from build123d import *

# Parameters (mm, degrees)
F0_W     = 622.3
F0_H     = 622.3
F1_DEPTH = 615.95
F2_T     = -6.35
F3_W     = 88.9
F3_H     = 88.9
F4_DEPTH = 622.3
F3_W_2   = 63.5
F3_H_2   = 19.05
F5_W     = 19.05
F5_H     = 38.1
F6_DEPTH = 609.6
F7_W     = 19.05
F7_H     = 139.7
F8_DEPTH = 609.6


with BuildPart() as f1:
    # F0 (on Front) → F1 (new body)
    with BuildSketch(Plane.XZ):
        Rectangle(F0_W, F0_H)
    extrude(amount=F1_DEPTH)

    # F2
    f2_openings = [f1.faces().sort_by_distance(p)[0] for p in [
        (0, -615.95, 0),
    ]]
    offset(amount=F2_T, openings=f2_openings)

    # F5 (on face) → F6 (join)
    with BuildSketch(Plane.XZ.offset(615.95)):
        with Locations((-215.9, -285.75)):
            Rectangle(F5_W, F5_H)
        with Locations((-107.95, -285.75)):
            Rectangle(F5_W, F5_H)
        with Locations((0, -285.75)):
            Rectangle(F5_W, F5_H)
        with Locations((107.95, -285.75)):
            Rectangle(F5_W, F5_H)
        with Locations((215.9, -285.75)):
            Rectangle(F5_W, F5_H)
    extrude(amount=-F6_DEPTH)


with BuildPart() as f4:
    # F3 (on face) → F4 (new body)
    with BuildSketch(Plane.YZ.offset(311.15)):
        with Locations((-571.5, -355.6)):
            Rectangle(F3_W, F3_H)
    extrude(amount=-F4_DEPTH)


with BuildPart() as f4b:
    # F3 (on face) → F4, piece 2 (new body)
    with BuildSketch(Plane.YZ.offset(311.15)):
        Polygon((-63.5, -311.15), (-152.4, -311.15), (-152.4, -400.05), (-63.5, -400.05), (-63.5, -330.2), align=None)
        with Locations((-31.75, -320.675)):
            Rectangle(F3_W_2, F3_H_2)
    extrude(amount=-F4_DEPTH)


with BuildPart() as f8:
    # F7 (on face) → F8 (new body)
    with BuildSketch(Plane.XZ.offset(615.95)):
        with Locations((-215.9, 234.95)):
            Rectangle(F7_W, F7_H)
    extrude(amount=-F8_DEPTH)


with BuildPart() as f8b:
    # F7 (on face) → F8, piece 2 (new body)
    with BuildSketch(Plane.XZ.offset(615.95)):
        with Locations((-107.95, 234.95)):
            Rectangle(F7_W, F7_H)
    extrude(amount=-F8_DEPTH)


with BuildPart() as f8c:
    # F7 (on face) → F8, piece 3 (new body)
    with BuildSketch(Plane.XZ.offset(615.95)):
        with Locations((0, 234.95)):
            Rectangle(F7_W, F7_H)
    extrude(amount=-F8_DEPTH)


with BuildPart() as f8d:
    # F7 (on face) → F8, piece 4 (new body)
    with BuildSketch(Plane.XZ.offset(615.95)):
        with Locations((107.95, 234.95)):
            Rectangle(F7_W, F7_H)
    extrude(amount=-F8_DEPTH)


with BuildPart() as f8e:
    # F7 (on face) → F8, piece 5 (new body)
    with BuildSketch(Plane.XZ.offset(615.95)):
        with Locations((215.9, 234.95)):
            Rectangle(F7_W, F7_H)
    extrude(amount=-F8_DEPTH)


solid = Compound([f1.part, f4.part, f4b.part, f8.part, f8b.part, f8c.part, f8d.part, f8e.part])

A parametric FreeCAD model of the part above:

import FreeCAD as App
import Part
import Sketcher
from FreeCAD import Vector
Q = App.Units.Quantity


def faces_at(feature, points):
    """Names of the faces that lie closest to the given points."""
    faces = feature.Shape.Faces
    near = lambda p: min(range(len(faces)), key=lambda i: faces[i].distToShape(Part.Vertex(*p))[0])
    return sorted({f"Face{near(p) + 1}" for p in points})

doc = App.newDocument("Part")
body = doc.addObject("PartDesign::Body", "Body")

# Sketch on XZ plane
sketch1 = body.newObject("Sketcher::SketchObject", "Sketch")
sketch1.AttachmentSupport = (doc.getObject("XZ_Plane"), [""])
sketch1.MapMode = "FlatFace"
sketch1.addGeometry([
    Part.LineSegment(Vector(-311, 311, 0), Vector(-311, -311, 0)),
    Part.LineSegment(Vector(-311, -311, 0), Vector(311, -311, 0)),
    Part.LineSegment(Vector(311, -311, 0), Vector(311, 311, 0)),
    Part.LineSegment(Vector(311, 311, 0), Vector(-311, 311, 0)),
], False)
sketch1.addConstraint([
    Sketcher.Constraint("Coincident", 0, 2, 1, 1),
    Sketcher.Constraint("Coincident", 1, 2, 2, 1),
    Sketcher.Constraint("Coincident", 2, 2, 3, 1),
    Sketcher.Constraint("Coincident", 3, 2, 0, 1),
    Sketcher.Constraint("Vertical", 0),
    Sketcher.Constraint("Horizontal", 1),
    Sketcher.Constraint("Vertical", 2),
    Sketcher.Constraint("Horizontal", 3),
    Sketcher.Constraint("Symmetric", 0, 2, 2, 2, -1, 1),
    Sketcher.Constraint("Equal", 3, 0),
    Sketcher.Constraint("DistanceX", 1, 1, 1, 2, Q("24.5 in")),
])
pad1 = body.newObject("PartDesign::Pad", "Pad")
pad1.Profile = sketch1
pad1.Length = Q("24.25 in")
doc.recompute()

thickness = body.newObject("PartDesign::Thickness", "Thickness")
thickness.Base = (pad1, faces_at(pad1, [(0, -615.95, 0)]))
thickness.Value = Q("0.25 in")
thickness.Reversed = True
thickness.Join = "Arc"

# Sketch on XZ plane
sketch2 = body.newObject("Sketcher::SketchObject", "Sketch001")
sketch2.AttachmentSupport = (doc.getObject("XZ_Plane"), [""])
sketch2.MapMode = "FlatFace"
sketch2.AttachmentOffset = App.Placement(Vector(0, 0, 24.25 * 25.4), App.Rotation())
sketch2.addGeometry([
    Part.LineSegment(Vector(-225, -267, 0), Vector(-225, -305, 0)),  # 0
    Part.LineSegment(Vector(-225, -305, 0), Vector(-206, -305, 0)),  # 1
    Part.LineSegment(Vector(-206, -305, 0), Vector(-206, -267, 0)),  # 2
    Part.LineSegment(Vector(-206, -267, 0), Vector(-225, -267, 0)),  # 3
    Part.LineSegment(Vector(-117, -267, 0), Vector(-117, -305, 0)),  # 4
    Part.LineSegment(Vector(-117, -305, 0), Vector(-98, -305, 0)),  # 5
    Part.LineSegment(Vector(-98, -305, 0), Vector(-98, -267, 0)),  # 6
    Part.LineSegment(Vector(-98, -267, 0), Vector(-117, -267, 0)),  # 7
    Part.LineSegment(Vector(-10, -267, 0), Vector(-10, -305, 0)),  # 8
    Part.LineSegment(Vector(-10, -305, 0), Vector(10, -305, 0)),  # 9
    Part.LineSegment(Vector(10, -305, 0), Vector(10, -267, 0)),  # 10
    Part.LineSegment(Vector(10, -267, 0), Vector(-10, -267, 0)),  # 11
    Part.LineSegment(Vector(98, -267, 0), Vector(98, -305, 0)),  # 12
    Part.LineSegment(Vector(98, -305, 0), Vector(117, -305, 0)),  # 13
    Part.LineSegment(Vector(117, -305, 0), Vector(117, -267, 0)),  # 14
    Part.LineSegment(Vector(117, -267, 0), Vector(98, -267, 0)),  # 15
    Part.LineSegment(Vector(206, -267, 0), Vector(206, -305, 0)),  # 16
    Part.LineSegment(Vector(206, -305, 0), Vector(225, -305, 0)),  # 17
    Part.LineSegment(Vector(225, -305, 0), Vector(225, -267, 0)),  # 18
    Part.LineSegment(Vector(225, -267, 0), Vector(206, -267, 0)),  # 19
], False)
sketch2.addConstraint([
    Sketcher.Constraint("Coincident", 0, 2, 1, 1),
    Sketcher.Constraint("Coincident", 1, 2, 2, 1),
    Sketcher.Constraint("Coincident", 2, 2, 3, 1),
    Sketcher.Constraint("Coincident", 3, 2, 0, 1),
    Sketcher.Constraint("Coincident", 4, 2, 5, 1),
    Sketcher.Constraint("Coincident", 5, 2, 6, 1),
    Sketcher.Constraint("Coincident", 6, 2, 7, 1),
    Sketcher.Constraint("Coincident", 7, 2, 4, 1),
    Sketcher.Constraint("Coincident", 8, 2, 9, 1),
    Sketcher.Constraint("Coincident", 9, 2, 10, 1),
    Sketcher.Constraint("Coincident", 10, 2, 11, 1),
    Sketcher.Constraint("Coincident", 11, 2, 8, 1),
    Sketcher.Constraint("Coincident", 12, 2, 13, 1),
    Sketcher.Constraint("Coincident", 13, 2, 14, 1),
    Sketcher.Constraint("Coincident", 14, 2, 15, 1),
    Sketcher.Constraint("Coincident", 15, 2, 12, 1),
    Sketcher.Constraint("Coincident", 16, 2, 17, 1),
    Sketcher.Constraint("Coincident", 17, 2, 18, 1),
    Sketcher.Constraint("Coincident", 18, 2, 19, 1),
    Sketcher.Constraint("Coincident", 19, 2, 16, 1),
    Sketcher.Constraint("Vertical", 0),
    Sketcher.Constraint("Horizontal", 1),
    Sketcher.Constraint("Vertical", 2),
    Sketcher.Constraint("Horizontal", 3),
    Sketcher.Constraint("Vertical", 4),
    Sketcher.Constraint("Horizontal", 5),
    Sketcher.Constraint("Vertical", 6),
    Sketcher.Constraint("Horizontal", 7),
    Sketcher.Constraint("Vertical", 8),
    Sketcher.Constraint("Horizontal", 9),
    Sketcher.Constraint("Vertical", 10),
    Sketcher.Constraint("Horizontal", 11),
    Sketcher.Constraint("Vertical", 12),
    Sketcher.Constraint("Horizontal", 13),
    Sketcher.Constraint("Vertical", 14),
    Sketcher.Constraint("Horizontal", 15),
    Sketcher.Constraint("Vertical", 16),
    Sketcher.Constraint("Horizontal", 17),
    Sketcher.Constraint("Vertical", 18),
    Sketcher.Constraint("Horizontal", 19),
    Sketcher.Constraint("Symmetric", 5, 2, 12, 2, -2),
    Sketcher.Constraint("Symmetric", 7, 2, 14, 2, -2),
    Sketcher.Constraint("Symmetric", 1, 2, 16, 2, -2),
    Sketcher.Constraint("Symmetric", 3, 2, 18, 2, -2),
    Sketcher.Constraint("Horizontal", 1, 2, 4, 2),
    Sketcher.Constraint("Horizontal", 3, 2, 6, 2),
    Sketcher.Constraint("Horizontal", 5, 2, 8, 2),
    Sketcher.Constraint("Horizontal", 7, 2, 10, 2),
    Sketcher.Constraint("Equal", 3, 5),
    Sketcher.Constraint("Equal", 7, 9),
    Sketcher.Constraint("DistanceY", 0, 2, 0, 1, Q("1.5 in")),
    Sketcher.Constraint("DistanceY", 0, 2, -1, 1, Q("12 in")),
    Sketcher.Constraint("DistanceX", 0, 2, 5, 2, Q("5 in")),
    Sketcher.Constraint("DistanceX", 4, 2, 9, 2, Q("5 in")),
    Sketcher.Constraint("DistanceX", 8, 2, 13, 2, Q("5 in")),
    Sketcher.Constraint("DistanceX", 1, 1, 1, 2, Q("0.75 in")),
])
pad2 = body.newObject("PartDesign::Pad", "Pad001")
pad2.Profile = sketch2
pad2.Length = Q("24 in")
pad2.Reversed = True
body2 = doc.addObject("PartDesign::Body", "Body001")

# Sketch on YZ plane
sketch3 = body2.newObject("Sketcher::SketchObject", "Sketch002")
sketch3.AttachmentSupport = (doc.getObject("YZ_Plane001"), [""])
sketch3.MapMode = "FlatFace"
sketch3.AttachmentOffset = App.Placement(Vector(0, 0, 12.25 * 25.4), App.Rotation())
sketch3.addGeometry([
    Part.LineSegment(Vector(-616, -311, 0), Vector(-616, -400, 0)),
    Part.LineSegment(Vector(-616, -400, 0), Vector(-527, -400, 0)),
    Part.LineSegment(Vector(-527, -400, 0), Vector(-527, -311, 0)),
    Part.LineSegment(Vector(-527, -311, 0), Vector(-616, -311, 0)),
], False)
sketch3.addConstraint([
    Sketcher.Constraint("Coincident", 0, 2, 1, 1),
    Sketcher.Constraint("Coincident", 1, 2, 2, 1),
    Sketcher.Constraint("Coincident", 2, 2, 3, 1),
    Sketcher.Constraint("Coincident", 3, 2, 0, 1),
    Sketcher.Constraint("Vertical", 0),
    Sketcher.Constraint("Horizontal", 1),
    Sketcher.Constraint("Vertical", 2),
    Sketcher.Constraint("Horizontal", 3),
    Sketcher.Constraint("Equal", 3, 0),
    Sketcher.Constraint("DistanceX", 1, 1, 1, 2, Q("3.5 in")),
    Sketcher.Constraint("DistanceX", 0, 2, -1, 1, Q("24.25 in")),
    Sketcher.Constraint("DistanceY", 0, 2, -1, 1, Q("15.75 in")),
])
pad3 = body2.newObject("PartDesign::Pad", "Pad002")
pad3.Profile = sketch3
pad3.Length = Q("24.5 in")
pad3.Reversed = True
body3 = doc.addObject("PartDesign::Body", "Body002")

# Sketch on YZ plane
sketch4 = body3.newObject("Sketcher::SketchObject", "Sketch003")
sketch4.AttachmentSupport = (doc.getObject("YZ_Plane002"), [""])
sketch4.MapMode = "FlatFace"
sketch4.AttachmentOffset = App.Placement(Vector(0, 0, 12.25 * 25.4), App.Rotation())
sketch4.addGeometry([
    Part.LineSegment(Vector(-152, -311, 0), Vector(-152, -400, 0)),  # 0
    Part.LineSegment(Vector(-152, -400, 0), Vector(-64, -400, 0)),  # 1
    Part.LineSegment(Vector(-64, -400, 0), Vector(-64, -330, 0)),  # 2
    Part.LineSegment(Vector(-64, -330, 0), Vector(0, -330, 0)),  # 3
    Part.LineSegment(Vector(0, -330, 0), Vector(0, -311, 0)),  # 4
    Part.LineSegment(Vector(0, -311, 0), Vector(-152, -311, 0)),  # 5
], False)
sketch4.addConstraint([
    Sketcher.Constraint("Coincident", 0, 2, 1, 1),
    Sketcher.Constraint("Coincident", 1, 2, 2, 1),
    Sketcher.Constraint("Coincident", 2, 2, 3, 1),
    Sketcher.Constraint("Coincident", 3, 2, 4, 1),
    Sketcher.Constraint("Coincident", 4, 2, 5, 1),
    Sketcher.Constraint("Coincident", 5, 2, 0, 1),
    Sketcher.Constraint("Vertical", 0),
    Sketcher.Constraint("Horizontal", 1),
    Sketcher.Constraint("Vertical", 2),
    Sketcher.Constraint("Horizontal", 3),
    Sketcher.Constraint("Vertical", 4),
    Sketcher.Constraint("Horizontal", 5),
    Sketcher.Constraint("PointOnObject", 3, 2, -2),
    Sketcher.Constraint("Equal", 1, 0),
    Sketcher.Constraint("DistanceX", 5, 2, 5, 1, Q("6 in")),
    Sketcher.Constraint("DistanceX", 1, 1, 1, 2, Q("3.5 in")),
    Sketcher.Constraint("DistanceY", 2, 2, -1, 1, Q("13 in")),
    Sketcher.Constraint("DistanceY", 2, 1, 2, 2, Q("2.75 in")),
])
pad4 = body3.newObject("PartDesign::Pad", "Pad003")
pad4.Profile = sketch4
pad4.Length = Q("24.5 in")
pad4.Reversed = True
body4 = doc.addObject("PartDesign::Body", "Body003")

# Sketch on XZ plane
sketch5 = body4.newObject("Sketcher::SketchObject", "Sketch004")
sketch5.AttachmentSupport = (doc.getObject("XZ_Plane003"), [""])
sketch5.MapMode = "FlatFace"
sketch5.AttachmentOffset = App.Placement(Vector(0, 0, 24.25 * 25.4), App.Rotation())
sketch5.addGeometry([
    Part.LineSegment(Vector(-225, 305, 0), Vector(-225, 165, 0)),
    Part.LineSegment(Vector(-225, 165, 0), Vector(-206, 165, 0)),
    Part.LineSegment(Vector(-206, 165, 0), Vector(-206, 305, 0)),
    Part.LineSegment(Vector(-206, 305, 0), Vector(-225, 305, 0)),
], False)
sketch5.addConstraint([
    Sketcher.Constraint("Coincident", 0, 2, 1, 1),
    Sketcher.Constraint("Coincident", 1, 2, 2, 1),
    Sketcher.Constraint("Coincident", 2, 2, 3, 1),
    Sketcher.Constraint("Coincident", 3, 2, 0, 1),
    Sketcher.Constraint("Vertical", 0),
    Sketcher.Constraint("Horizontal", 1),
    Sketcher.Constraint("Vertical", 2),
    Sketcher.Constraint("Horizontal", 3),
    Sketcher.Constraint("DistanceY", 0, 2, 0, 1, Q("5.5 in")),
    Sketcher.Constraint("DistanceY", -1, 1, 2, 2, Q("12 in")),
    Sketcher.Constraint("DistanceX", 1, 1, 1, 2, Q("0.75 in")),
    Sketcher.Constraint("DistanceX", 0, 2, -1, 1, Q("8.875 in")),
])
pad5 = body4.newObject("PartDesign::Pad", "Pad004")
pad5.Profile = sketch5
pad5.Length = Q("24 in")
pad5.Reversed = True
body5 = doc.addObject("PartDesign::Body", "Body004")

# Sketch on XZ plane
sketch6 = body5.newObject("Sketcher::SketchObject", "Sketch005")
sketch6.AttachmentSupport = (doc.getObject("XZ_Plane004"), [""])
sketch6.MapMode = "FlatFace"
sketch6.AttachmentOffset = App.Placement(Vector(0, 0, 24.25 * 25.4), App.Rotation())
sketch6.addGeometry([
    Part.LineSegment(Vector(-117, 305, 0), Vector(-117, 165, 0)),
    Part.LineSegment(Vector(-117, 165, 0), Vector(-98, 165, 0)),
    Part.LineSegment(Vector(-98, 165, 0), Vector(-98, 305, 0)),
    Part.LineSegment(Vector(-98, 305, 0), Vector(-117, 305, 0)),
], False)
sketch6.addConstraint([
    Sketcher.Constraint("Coincident", 0, 2, 1, 1),
    Sketcher.Constraint("Coincident", 1, 2, 2, 1),
    Sketcher.Constraint("Coincident", 2, 2, 3, 1),
    Sketcher.Constraint("Coincident", 3, 2, 0, 1),
    Sketcher.Constraint("Vertical", 0),
    Sketcher.Constraint("Horizontal", 1),
    Sketcher.Constraint("Vertical", 2),
    Sketcher.Constraint("Horizontal", 3),
    Sketcher.Constraint("DistanceY", 0, 2, 0, 1, Q("5.5 in")),
    Sketcher.Constraint("DistanceY", -1, 1, 2, 2, Q("12 in")),
    Sketcher.Constraint("DistanceX", 1, 1, 1, 2, Q("0.75 in")),
    Sketcher.Constraint("DistanceX", 0, 2, -1, 1, Q("4.625 in")),
])
pad6 = body5.newObject("PartDesign::Pad", "Pad005")
pad6.Profile = sketch6
pad6.Length = Q("24 in")
pad6.Reversed = True
body6 = doc.addObject("PartDesign::Body", "Body005")

# Sketch on XZ plane
sketch7 = body6.newObject("Sketcher::SketchObject", "Sketch006")
sketch7.AttachmentSupport = (doc.getObject("XZ_Plane005"), [""])
sketch7.MapMode = "FlatFace"
sketch7.AttachmentOffset = App.Placement(Vector(0, 0, 24.25 * 25.4), App.Rotation())
sketch7.addGeometry([
    Part.LineSegment(Vector(-10, 305, 0), Vector(-10, 165, 0)),
    Part.LineSegment(Vector(-10, 165, 0), Vector(10, 165, 0)),
    Part.LineSegment(Vector(10, 165, 0), Vector(10, 305, 0)),
    Part.LineSegment(Vector(10, 305, 0), Vector(-10, 305, 0)),
], False)
sketch7.addConstraint([
    Sketcher.Constraint("Coincident", 0, 2, 1, 1),
    Sketcher.Constraint("Coincident", 1, 2, 2, 1),
    Sketcher.Constraint("Coincident", 2, 2, 3, 1),
    Sketcher.Constraint("Coincident", 3, 2, 0, 1),
    Sketcher.Constraint("Vertical", 0),
    Sketcher.Constraint("Horizontal", 1),
    Sketcher.Constraint("Vertical", 2),
    Sketcher.Constraint("Horizontal", 3),
    Sketcher.Constraint("DistanceY", 0, 2, 0, 1, Q("5.5 in")),
    Sketcher.Constraint("DistanceY", -1, 1, 2, 2, Q("12 in")),
    Sketcher.Constraint("DistanceX", 1, 1, 1, 2, Q("0.75 in")),
    Sketcher.Constraint("DistanceX", 0, 2, -1, 1, Q("0.375 in")),
])
pad7 = body6.newObject("PartDesign::Pad", "Pad006")
pad7.Profile = sketch7
pad7.Length = Q("24 in")
pad7.Reversed = True
body7 = doc.addObject("PartDesign::Body", "Body006")

# Sketch on XZ plane
sketch8 = body7.newObject("Sketcher::SketchObject", "Sketch007")
sketch8.AttachmentSupport = (doc.getObject("XZ_Plane006"), [""])
sketch8.MapMode = "FlatFace"
sketch8.AttachmentOffset = App.Placement(Vector(0, 0, 24.25 * 25.4), App.Rotation())
sketch8.addGeometry([
    Part.LineSegment(Vector(98, 305, 0), Vector(98, 165, 0)),
    Part.LineSegment(Vector(98, 165, 0), Vector(117, 165, 0)),
    Part.LineSegment(Vector(117, 165, 0), Vector(117, 305, 0)),
    Part.LineSegment(Vector(117, 305, 0), Vector(98, 305, 0)),
], False)
sketch8.addConstraint([
    Sketcher.Constraint("Coincident", 0, 2, 1, 1),
    Sketcher.Constraint("Coincident", 1, 2, 2, 1),
    Sketcher.Constraint("Coincident", 2, 2, 3, 1),
    Sketcher.Constraint("Coincident", 3, 2, 0, 1),
    Sketcher.Constraint("Vertical", 0),
    Sketcher.Constraint("Horizontal", 1),
    Sketcher.Constraint("Vertical", 2),
    Sketcher.Constraint("Horizontal", 3),
    Sketcher.Constraint("DistanceY", 0, 2, 0, 1, Q("5.5 in")),
    Sketcher.Constraint("DistanceY", -1, 1, 2, 2, Q("12 in")),
    Sketcher.Constraint("DistanceX", 1, 1, 1, 2, Q("0.75 in")),
    Sketcher.Constraint("DistanceX", -1, 1, 0, 2, Q("3.875 in")),
])
pad8 = body7.newObject("PartDesign::Pad", "Pad007")
pad8.Profile = sketch8
pad8.Length = Q("24 in")
pad8.Reversed = True
body8 = doc.addObject("PartDesign::Body", "Body007")

# Sketch on XZ plane
sketch9 = body8.newObject("Sketcher::SketchObject", "Sketch008")
sketch9.AttachmentSupport = (doc.getObject("XZ_Plane007"), [""])
sketch9.MapMode = "FlatFace"
sketch9.AttachmentOffset = App.Placement(Vector(0, 0, 24.25 * 25.4), App.Rotation())
sketch9.addGeometry([
    Part.LineSegment(Vector(206, 305, 0), Vector(206, 165, 0)),
    Part.LineSegment(Vector(206, 165, 0), Vector(225, 165, 0)),
    Part.LineSegment(Vector(225, 165, 0), Vector(225, 305, 0)),
    Part.LineSegment(Vector(225, 305, 0), Vector(206, 305, 0)),
], False)
sketch9.addConstraint([
    Sketcher.Constraint("Coincident", 0, 2, 1, 1),
    Sketcher.Constraint("Coincident", 1, 2, 2, 1),
    Sketcher.Constraint("Coincident", 2, 2, 3, 1),
    Sketcher.Constraint("Coincident", 3, 2, 0, 1),
    Sketcher.Constraint("Vertical", 0),
    Sketcher.Constraint("Horizontal", 1),
    Sketcher.Constraint("Vertical", 2),
    Sketcher.Constraint("Horizontal", 3),
    Sketcher.Constraint("DistanceY", 0, 2, 0, 1, Q("5.5 in")),
    Sketcher.Constraint("DistanceY", -1, 1, 2, 2, Q("12 in")),
    Sketcher.Constraint("DistanceX", 1, 1, 1, 2, Q("0.75 in")),
    Sketcher.Constraint("DistanceX", -1, 1, 0, 2, Q("8.125 in")),
])
pad9 = body8.newObject("PartDesign::Pad", "Pad008")
pad9.Profile = sketch9
pad9.Length = Q("24 in")
pad9.Reversed = True

doc.recompute()
